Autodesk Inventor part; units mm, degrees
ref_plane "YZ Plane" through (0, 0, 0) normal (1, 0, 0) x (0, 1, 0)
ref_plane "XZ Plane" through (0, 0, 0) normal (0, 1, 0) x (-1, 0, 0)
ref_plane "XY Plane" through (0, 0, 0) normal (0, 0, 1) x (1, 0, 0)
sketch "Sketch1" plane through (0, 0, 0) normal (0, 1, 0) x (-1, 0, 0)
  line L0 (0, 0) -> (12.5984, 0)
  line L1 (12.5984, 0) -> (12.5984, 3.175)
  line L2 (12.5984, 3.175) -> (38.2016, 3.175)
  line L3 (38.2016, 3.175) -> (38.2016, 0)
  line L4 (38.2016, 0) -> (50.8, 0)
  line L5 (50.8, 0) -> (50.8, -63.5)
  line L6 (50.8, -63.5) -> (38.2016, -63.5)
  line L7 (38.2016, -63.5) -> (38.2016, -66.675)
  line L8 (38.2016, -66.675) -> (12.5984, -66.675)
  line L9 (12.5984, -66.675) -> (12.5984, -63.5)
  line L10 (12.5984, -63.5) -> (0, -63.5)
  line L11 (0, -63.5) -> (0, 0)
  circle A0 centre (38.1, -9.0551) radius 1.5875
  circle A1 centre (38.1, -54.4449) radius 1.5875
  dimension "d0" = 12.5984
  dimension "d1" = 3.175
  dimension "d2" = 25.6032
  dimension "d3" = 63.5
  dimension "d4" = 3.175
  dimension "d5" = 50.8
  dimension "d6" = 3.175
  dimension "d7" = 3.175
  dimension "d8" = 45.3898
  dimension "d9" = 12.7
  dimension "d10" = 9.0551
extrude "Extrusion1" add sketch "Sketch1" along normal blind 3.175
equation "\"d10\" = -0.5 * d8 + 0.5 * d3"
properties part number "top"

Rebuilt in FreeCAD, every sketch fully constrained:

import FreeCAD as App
import Part
import Sketcher

V = App.Vector
Q = App.Units.Quantity


def add_polygon(sketch, points):
    """Adds a closed chain of lines whose ends are joined by coincident constraints."""
    first, n = sketch.GeometryCount, len(points)
    for a, b in zip(points, points[1:] + points[:1]):
        sketch.addGeometry(Part.LineSegment(App.Vector(*a, 0), App.Vector(*b, 0)), False)
    for i in range(n):
        sketch.addConstraint(Sketcher.Constraint("Coincident", first + i, 2, first + (i + 1) % n, 1))

doc = App.newDocument("Part")
body = doc.addObject("PartDesign::Body", "Body")

sketch1 = body.newObject("Sketcher::SketchObject", "Sketch")
sketch1.AttachmentSupport = (doc.getObject("XZ_Plane"), [""])
sketch1.MapMode = "FlatFace"
add_polygon(sketch1, [(-12.5984, 0), (0, 0), (0, -63.5), (-12.5984, -63.5), (-12.5984, -66.675), (-38.2016, -66.675), (-38.2016, -63.5), (-50.8, -63.5), (-50.8, 0), (-38.2016, 0), (-38.2016, 3.175), (-12.5984, 3.175)])
sketch1.addGeometry(Part.Circle(V(-38.1, -54.4449, 0), V(0, 0, 1), 1.5875), False)
sketch1.addGeometry(Part.Circle(V(-38.1, -9.0551, 0), V(0, 0, 1), 1.5875), False)
sketch1.addConstraint(Sketcher.Constraint("Horizontal", 0))
sketch1.addConstraint(Sketcher.Constraint("Vertical", 1))
sketch1.addConstraint(Sketcher.Constraint("Horizontal", 2))
sketch1.addConstraint(Sketcher.Constraint("Vertical", 3))
sketch1.addConstraint(Sketcher.Constraint("Horizontal", 4))
sketch1.addConstraint(Sketcher.Constraint("Vertical", 5))
sketch1.addConstraint(Sketcher.Constraint("Horizontal", 6))
sketch1.addConstraint(Sketcher.Constraint("Vertical", 7))
sketch1.addConstraint(Sketcher.Constraint("Horizontal", 8))
sketch1.addConstraint(Sketcher.Constraint("Vertical", 9))
sketch1.addConstraint(Sketcher.Constraint("Horizontal", 10))
sketch1.addConstraint(Sketcher.Constraint("Vertical", 11))
sketch1.addConstraint(Sketcher.Constraint("Coincident", 0, 2, -1, 1))
sketch1.addConstraint(Sketcher.Constraint("Equal", 12, 13))
sketch1.addConstraint(Sketcher.Constraint("PointOnObject", 7, 2, -1))
sketch1.addConstraint(Sketcher.Constraint("Horizontal", 2, 2, 5, 2))
sketch1.addConstraint(Sketcher.Constraint("Vertical", 12, 3, 13, 3))
sketch1.addConstraint(Sketcher.Constraint("Vertical", 5, 2, 8, 2))
sketch1.addConstraint(Sketcher.Constraint("Vertical", 3, 2, 10, 2))
sketch1.addConstraint(Sketcher.Constraint("Equal", 2, 6))
sketch1.addConstraint(Sketcher.Constraint("Equal", 5, 9))
sketch1.addConstraint(Sketcher.Constraint("Diameter", 12, Q("0.125 in")))
sketch1.addConstraint(Sketcher.Constraint("DistanceY", 1, 2, 1, 1, Q("2.5 in")))
sketch1.addConstraint(Sketcher.Constraint("DistanceX", 6, 2, -1, 1, Q("2 in")))
sketch1.addConstraint(Sketcher.Constraint("DistanceX", 6, 2, 12, 3, Q("0.5 in")))
sketch1.addConstraint(Sketcher.Constraint("DistanceX", 0, 1, 0, 2, Q("0.496 in")))
sketch1.addConstraint(Sketcher.Constraint("DistanceY", 3, 2, 3, 1, Q("0.125 in")))
sketch1.addConstraint(Sketcher.Constraint("DistanceY", 12, 3, 13, 3, Q("1.787 in")))
sketch1.addConstraint(Sketcher.Constraint("DistanceY", 13, 3, -1, 1, Q("0.3565 in")))
pad1 = body.newObject("PartDesign::Pad", "Pad")
pad1.Profile = sketch1
pad1.Length = Q("0.125 in")
pad1.Reversed = True

doc.recompute()
